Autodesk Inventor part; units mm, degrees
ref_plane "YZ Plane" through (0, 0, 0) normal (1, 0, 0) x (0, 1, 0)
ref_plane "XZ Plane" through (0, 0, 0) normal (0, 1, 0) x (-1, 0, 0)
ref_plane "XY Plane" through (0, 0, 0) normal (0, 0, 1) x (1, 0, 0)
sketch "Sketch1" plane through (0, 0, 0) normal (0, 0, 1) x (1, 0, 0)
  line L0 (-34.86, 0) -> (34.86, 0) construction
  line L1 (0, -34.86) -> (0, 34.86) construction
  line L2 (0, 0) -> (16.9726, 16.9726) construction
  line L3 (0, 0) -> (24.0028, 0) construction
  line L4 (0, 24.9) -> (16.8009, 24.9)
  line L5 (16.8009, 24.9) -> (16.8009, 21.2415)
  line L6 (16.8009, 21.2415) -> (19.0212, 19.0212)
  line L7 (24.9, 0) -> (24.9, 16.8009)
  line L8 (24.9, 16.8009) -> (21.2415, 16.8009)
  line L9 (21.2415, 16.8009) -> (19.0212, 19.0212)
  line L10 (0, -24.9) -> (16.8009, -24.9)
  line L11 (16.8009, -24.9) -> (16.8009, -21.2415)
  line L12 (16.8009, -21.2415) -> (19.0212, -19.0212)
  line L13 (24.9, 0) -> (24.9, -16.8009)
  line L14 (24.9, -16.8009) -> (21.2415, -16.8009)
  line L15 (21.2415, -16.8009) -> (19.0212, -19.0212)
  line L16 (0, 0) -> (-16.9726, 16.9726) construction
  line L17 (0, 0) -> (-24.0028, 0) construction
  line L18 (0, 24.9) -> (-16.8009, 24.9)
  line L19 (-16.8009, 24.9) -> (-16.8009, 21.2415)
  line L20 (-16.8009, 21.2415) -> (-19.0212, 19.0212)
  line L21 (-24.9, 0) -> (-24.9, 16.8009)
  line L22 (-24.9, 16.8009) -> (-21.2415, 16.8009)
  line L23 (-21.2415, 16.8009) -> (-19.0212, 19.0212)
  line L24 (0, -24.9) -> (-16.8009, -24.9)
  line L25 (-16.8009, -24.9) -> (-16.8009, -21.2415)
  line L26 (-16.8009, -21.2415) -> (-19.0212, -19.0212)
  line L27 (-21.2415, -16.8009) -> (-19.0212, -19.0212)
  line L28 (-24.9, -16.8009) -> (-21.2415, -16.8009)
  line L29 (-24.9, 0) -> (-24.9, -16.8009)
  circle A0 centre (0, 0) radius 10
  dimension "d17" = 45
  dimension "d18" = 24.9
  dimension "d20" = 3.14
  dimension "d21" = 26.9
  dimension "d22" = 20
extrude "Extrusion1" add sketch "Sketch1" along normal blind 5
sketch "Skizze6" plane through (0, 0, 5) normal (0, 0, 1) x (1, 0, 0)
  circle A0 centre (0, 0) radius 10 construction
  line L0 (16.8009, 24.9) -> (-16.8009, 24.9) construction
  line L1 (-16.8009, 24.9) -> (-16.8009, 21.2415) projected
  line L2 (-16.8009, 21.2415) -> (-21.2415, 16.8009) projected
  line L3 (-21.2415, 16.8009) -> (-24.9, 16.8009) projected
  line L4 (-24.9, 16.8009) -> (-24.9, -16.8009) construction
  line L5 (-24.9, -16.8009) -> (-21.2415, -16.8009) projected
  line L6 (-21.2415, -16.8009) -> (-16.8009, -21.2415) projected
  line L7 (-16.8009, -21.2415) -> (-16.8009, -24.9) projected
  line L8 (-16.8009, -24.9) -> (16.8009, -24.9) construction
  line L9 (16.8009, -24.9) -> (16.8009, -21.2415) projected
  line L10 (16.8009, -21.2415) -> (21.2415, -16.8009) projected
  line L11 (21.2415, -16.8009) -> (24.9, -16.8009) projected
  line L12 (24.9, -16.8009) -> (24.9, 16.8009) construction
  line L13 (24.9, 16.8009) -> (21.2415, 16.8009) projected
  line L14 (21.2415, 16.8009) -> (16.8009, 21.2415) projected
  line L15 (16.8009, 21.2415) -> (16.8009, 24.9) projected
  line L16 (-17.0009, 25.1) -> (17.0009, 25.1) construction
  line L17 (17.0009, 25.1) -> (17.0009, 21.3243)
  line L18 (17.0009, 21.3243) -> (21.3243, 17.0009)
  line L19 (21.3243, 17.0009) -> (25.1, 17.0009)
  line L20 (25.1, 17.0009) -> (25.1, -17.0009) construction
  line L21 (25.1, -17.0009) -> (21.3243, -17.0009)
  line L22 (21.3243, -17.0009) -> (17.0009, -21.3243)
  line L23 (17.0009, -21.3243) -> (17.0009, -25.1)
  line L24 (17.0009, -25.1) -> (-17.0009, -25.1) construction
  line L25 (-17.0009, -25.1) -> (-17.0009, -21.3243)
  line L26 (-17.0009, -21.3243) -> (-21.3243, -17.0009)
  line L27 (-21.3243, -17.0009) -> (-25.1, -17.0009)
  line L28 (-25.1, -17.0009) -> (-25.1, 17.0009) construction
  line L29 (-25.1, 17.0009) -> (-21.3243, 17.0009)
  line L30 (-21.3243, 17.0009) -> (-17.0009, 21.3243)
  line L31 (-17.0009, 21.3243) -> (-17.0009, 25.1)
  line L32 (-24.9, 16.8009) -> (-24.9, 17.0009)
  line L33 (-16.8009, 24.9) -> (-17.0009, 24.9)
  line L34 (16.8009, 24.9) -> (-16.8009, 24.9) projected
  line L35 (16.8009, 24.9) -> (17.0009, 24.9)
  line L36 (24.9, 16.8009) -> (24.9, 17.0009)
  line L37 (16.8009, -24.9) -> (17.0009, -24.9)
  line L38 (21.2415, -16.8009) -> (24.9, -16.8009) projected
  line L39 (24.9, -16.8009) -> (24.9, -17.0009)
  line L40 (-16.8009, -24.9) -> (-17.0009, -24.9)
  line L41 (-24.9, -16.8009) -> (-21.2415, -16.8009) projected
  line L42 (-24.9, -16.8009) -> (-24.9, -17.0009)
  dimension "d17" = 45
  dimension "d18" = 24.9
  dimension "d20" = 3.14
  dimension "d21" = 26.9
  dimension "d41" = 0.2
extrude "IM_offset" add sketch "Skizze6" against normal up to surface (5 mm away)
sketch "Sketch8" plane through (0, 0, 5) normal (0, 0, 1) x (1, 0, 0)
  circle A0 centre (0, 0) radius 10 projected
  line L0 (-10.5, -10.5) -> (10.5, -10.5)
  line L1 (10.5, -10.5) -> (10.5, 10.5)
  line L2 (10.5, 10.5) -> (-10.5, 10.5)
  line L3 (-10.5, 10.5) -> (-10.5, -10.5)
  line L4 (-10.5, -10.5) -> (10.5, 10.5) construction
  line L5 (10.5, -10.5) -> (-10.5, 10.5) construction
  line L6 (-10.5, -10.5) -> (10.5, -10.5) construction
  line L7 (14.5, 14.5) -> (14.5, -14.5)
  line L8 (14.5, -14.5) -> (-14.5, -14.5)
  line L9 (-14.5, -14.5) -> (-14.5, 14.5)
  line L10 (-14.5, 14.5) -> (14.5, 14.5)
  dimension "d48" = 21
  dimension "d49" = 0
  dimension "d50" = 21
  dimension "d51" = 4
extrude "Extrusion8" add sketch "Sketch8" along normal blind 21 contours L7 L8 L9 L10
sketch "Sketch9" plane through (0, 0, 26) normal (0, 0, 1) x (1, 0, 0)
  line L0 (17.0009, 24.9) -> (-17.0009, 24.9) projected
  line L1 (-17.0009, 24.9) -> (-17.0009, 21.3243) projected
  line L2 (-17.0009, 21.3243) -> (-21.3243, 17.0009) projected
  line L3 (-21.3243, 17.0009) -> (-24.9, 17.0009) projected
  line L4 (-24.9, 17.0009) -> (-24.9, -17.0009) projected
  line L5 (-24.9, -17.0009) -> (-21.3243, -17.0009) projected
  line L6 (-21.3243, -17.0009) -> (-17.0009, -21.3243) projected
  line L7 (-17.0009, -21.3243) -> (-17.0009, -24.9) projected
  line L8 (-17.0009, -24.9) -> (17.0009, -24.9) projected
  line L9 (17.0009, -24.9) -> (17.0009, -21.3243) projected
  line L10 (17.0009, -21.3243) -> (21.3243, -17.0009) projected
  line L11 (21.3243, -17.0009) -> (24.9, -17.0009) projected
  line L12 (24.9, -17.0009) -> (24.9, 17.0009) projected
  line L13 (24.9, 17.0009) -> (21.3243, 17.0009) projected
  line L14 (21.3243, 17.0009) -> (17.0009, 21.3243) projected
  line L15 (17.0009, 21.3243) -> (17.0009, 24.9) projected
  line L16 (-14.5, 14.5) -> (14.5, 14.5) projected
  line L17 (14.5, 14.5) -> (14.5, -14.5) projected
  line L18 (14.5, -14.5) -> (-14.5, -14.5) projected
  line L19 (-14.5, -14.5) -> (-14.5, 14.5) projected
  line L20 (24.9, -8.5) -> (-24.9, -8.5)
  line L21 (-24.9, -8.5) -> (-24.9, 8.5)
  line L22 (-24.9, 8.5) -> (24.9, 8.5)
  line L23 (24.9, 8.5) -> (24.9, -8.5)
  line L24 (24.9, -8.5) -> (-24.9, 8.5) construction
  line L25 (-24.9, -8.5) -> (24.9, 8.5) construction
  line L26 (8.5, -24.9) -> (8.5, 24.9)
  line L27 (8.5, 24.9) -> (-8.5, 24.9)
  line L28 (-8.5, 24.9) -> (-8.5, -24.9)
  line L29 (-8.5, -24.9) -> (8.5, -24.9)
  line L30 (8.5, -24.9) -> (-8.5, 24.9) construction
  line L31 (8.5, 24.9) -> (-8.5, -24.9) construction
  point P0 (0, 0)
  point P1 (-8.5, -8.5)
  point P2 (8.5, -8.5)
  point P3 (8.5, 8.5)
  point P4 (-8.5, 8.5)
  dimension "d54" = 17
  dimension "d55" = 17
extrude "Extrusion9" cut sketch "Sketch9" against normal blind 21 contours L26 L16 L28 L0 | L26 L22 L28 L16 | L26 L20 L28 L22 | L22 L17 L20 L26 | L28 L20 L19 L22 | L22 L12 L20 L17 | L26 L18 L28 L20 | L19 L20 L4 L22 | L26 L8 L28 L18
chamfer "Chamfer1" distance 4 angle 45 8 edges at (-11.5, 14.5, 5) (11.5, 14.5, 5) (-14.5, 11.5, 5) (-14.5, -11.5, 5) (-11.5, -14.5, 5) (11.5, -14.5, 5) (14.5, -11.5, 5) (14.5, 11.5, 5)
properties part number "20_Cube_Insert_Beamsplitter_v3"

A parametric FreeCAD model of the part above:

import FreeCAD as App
import Part
import Sketcher
Q = App.Units.Quantity


def edges_at(feature, points):
    """Names of the edges that pass closest to the given points."""
    edges = feature.Shape.Edges
    near = lambda p: min(range(len(edges)), key=lambda i: edges[i].distToShape(Part.Vertex(*p))[0])
    return sorted({f"Edge{near(p) + 1}" for p in points})


def add_polygon(sketch, points):
    """Adds a closed chain of lines whose ends are joined by coincident constraints."""
    first, n = sketch.GeometryCount, len(points)
    for a, b in zip(points, points[1:] + points[:1]):
        sketch.addGeometry(Part.LineSegment(App.Vector(*a, 0), App.Vector(*b, 0)), False)
    for i in range(n):
        sketch.addConstraint(Sketcher.Constraint("Coincident", first + i, 2, first + (i + 1) % n, 1))

doc = App.newDocument("Part")
params = doc.addObject("Spreadsheet::Sheet", "Params")
for row, (alias, value) in enumerate([
    ("sketch1_diameter", "20 mm"),
    ("sketch1_length", "6.28 mm"),
    ("pad1_length", "5 mm"),
    ("sketch2_width", "0.2 mm"),
    ("sketch2_length", "6.28 mm"),
    ("pad2_length", "5 mm"),
    ("sketch3_width", "21 mm"),
    ("pad3_length", "21 mm"),
    ("sketch4_width", "17 mm"),
    ("sketch4_width2", "16.4 mm"),
    ("pocket1_length", "21 mm"),
    ("chamfer_size", "4 mm"),
], start=1):
    params.set(f"A{row}", alias)
    params.set(f"B{row}", "=" + value)
    params.setAlias(f"B{row}", alias)

body = doc.addObject("PartDesign::Body", "Body")

# Sketch on XY plane
sketch1 = doc.addObject("Sketcher::SketchObject", "Sketch")
body.addObject(sketch1)
sketch1.AttachmentSupport = (doc.XY_Plane, [""])
sketch1.MapMode = "FlatFace"
add_polygon(sketch1, [(16.8, 24.9), (-16.8, 24.9), (-16.8, 21.2), (-21.2, 16.8), (-24.9, 16.8), (-24.9, -16.8), (-21.2, -16.8), (-16.8, -21.2), (-16.8, -24.9), (16.8, -24.9), (16.8, -21.2), (21.2, -16.8), (24.9, -16.8), (24.9, 16.8), (21.2, 16.8), (16.8, 21.2)])  # lines 0-15
sketch1.addGeometry(Part.Circle(App.Vector(0, 0, 0), App.Vector(0, 0, 1), 10), False)  # 16
sketch1.addConstraint(Sketcher.Constraint("Horizontal", 0))
sketch1.addConstraint(Sketcher.Constraint("Vertical", 1))
sketch1.addConstraint(Sketcher.Constraint("Horizontal", 3))
sketch1.addConstraint(Sketcher.Constraint("Vertical", 4))
sketch1.addConstraint(Sketcher.Constraint("Horizontal", 5))
sketch1.addConstraint(Sketcher.Constraint("Vertical", 7))
sketch1.addConstraint(Sketcher.Constraint("Horizontal", 8))
sketch1.addConstraint(Sketcher.Constraint("Vertical", 9))
sketch1.addConstraint(Sketcher.Constraint("Horizontal", 11))
sketch1.addConstraint(Sketcher.Constraint("Vertical", 12))
sketch1.addConstraint(Sketcher.Constraint("Horizontal", 13))
sketch1.addConstraint(Sketcher.Constraint("Vertical", 15))
sketch1.addConstraint(Sketcher.Constraint("Coincident", 16, 3, -1, 1))
sketch1.addConstraint(Sketcher.Constraint("Symmetric", 0, 2, 8, 2, -1, 1))
sketch1.addConstraint(Sketcher.Constraint("Symmetric", 2, 2, 10, 2, -1, 1))
sketch1.addConstraint(Sketcher.Constraint("Symmetric", 4, 2, 12, 2, -1, 1))
sketch1.addConstraint(Sketcher.Constraint("Symmetric", 6, 2, 14, 2, -1, 1))
sketch1.addConstraint(Sketcher.Constraint("Symmetric", 6, 2, 9, 2, -2))
sketch1.addConstraint(Sketcher.Constraint("Symmetric", 5, 2, 10, 2, -2))
sketch1.addConstraint(Sketcher.Constraint("Perpendicular", 2, 6))
sketch1.addConstraint(Sketcher.Constraint("Perpendicular", 6, 10))
sketch1.addConstraint(Sketcher.Constraint("Perpendicular", 10, 14))
sketch1.addConstraint(Sketcher.Constraint("Equal", 13, 1))
sketch1.addConstraint(Sketcher.Constraint("Equal", 8, 4))
sketch1.addConstraint(Sketcher.Constraint("Diameter", 16, Q("20 mm")))
sketch1.addConstraint(Sketcher.Constraint("DistanceY", -1, 1, 0, 2, Q("24.9 mm")))
sketch1.addConstraint(Sketcher.Constraint("Distance", 2, Q("6.28 mm")))
sketch1.addConstraint(Sketcher.Constraint("DistanceX", 0, 2, 0, 1, Q("33.6018 mm")))
sketch1.setExpression("Constraints[40]", "Params.sketch1_diameter")
sketch1.setExpression("Constraints[42]", "Params.sketch1_length")
pad1 = doc.addObject("PartDesign::Pad", "Pad")
body.addObject(pad1)
pad1.Profile = sketch1
pad1.setExpression("Length", "Params.pad1_length")

# Sketch on XY plane
sketch2 = doc.addObject("Sketcher::SketchObject", "Sketch001")
body.addObject(sketch2)
sketch2.AttachmentSupport = (doc.XY_Plane, [""])
sketch2.MapMode = "FlatFace"
sketch2.AttachmentOffset = App.Placement(App.Vector(0, 0, 5), App.Rotation())
add_polygon(sketch2, [(-16.8, 21.24), (-16.8, 24.9), (-17, 24.9), (-17, 21.32), (-21.32, 17), (-24.9, 17), (-24.9, 16.8), (-21.24, 16.8)])  # lines 0-7
add_polygon(sketch2, [(17, 24.9), (16.8, 24.9), (16.8, 21.24), (21.24, 16.8), (24.9, 16.8), (24.9, 17), (21.32, 17), (17, 21.32)])  # lines 8-15
add_polygon(sketch2, [(-21.24, -16.8), (-24.9, -16.8), (-24.9, -17), (-21.32, -17), (-17, -21.32), (-17, -24.9), (-16.8, -24.9), (-16.8, -21.24)])  # lines 16-23
add_polygon(sketch2, [(16.8, -21.24), (16.8, -24.9), (17, -24.9), (17, -21.32), (21.32, -17), (24.9, -17), (24.9, -16.8), (21.24, -16.8)])  # lines 24-31
sketch2.addConstraint(Sketcher.Constraint("Vertical", 0))
sketch2.addConstraint(Sketcher.Constraint("Horizontal", 1))
sketch2.addConstraint(Sketcher.Constraint("Vertical", 2))
sketch2.addConstraint(Sketcher.Constraint("Horizontal", 4))
sketch2.addConstraint(Sketcher.Constraint("Vertical", 5))
sketch2.addConstraint(Sketcher.Constraint("Horizontal", 6))
sketch2.addConstraint(Sketcher.Constraint("Horizontal", 8))
sketch2.addConstraint(Sketcher.Constraint("Vertical", 9))
sketch2.addConstraint(Sketcher.Constraint("Horizontal", 11))
sketch2.addConstraint(Sketcher.Constraint("Vertical", 12))
sketch2.addConstraint(Sketcher.Constraint("Horizontal", 13))
sketch2.addConstraint(Sketcher.Constraint("Vertical", 15))
sketch2.addConstraint(Sketcher.Constraint("Horizontal", 16))
sketch2.addConstraint(Sketcher.Constraint("Vertical", 17))
sketch2.addConstraint(Sketcher.Constraint("Horizontal", 18))
sketch2.addConstraint(Sketcher.Constraint("Vertical", 20))
sketch2.addConstraint(Sketcher.Constraint("Horizontal", 21))
sketch2.addConstraint(Sketcher.Constraint("Vertical", 22))
sketch2.addConstraint(Sketcher.Constraint("Vertical", 24))
sketch2.addConstraint(Sketcher.Constraint("Horizontal", 25))
sketch2.addConstraint(Sketcher.Constraint("Vertical", 26))
sketch2.addConstraint(Sketcher.Constraint("Horizontal", 28))
sketch2.addConstraint(Sketcher.Constraint("Vertical", 29))
sketch2.addConstraint(Sketcher.Constraint("Horizontal", 30))
sketch2.addConstraint(Sketcher.Constraint("Symmetric", 11, 2, 16, 2, -1, 1))
sketch2.addConstraint(Sketcher.Constraint("Symmetric", 13, 2, 18, 2, -1, 1))
sketch2.addConstraint(Sketcher.Constraint("Symmetric", 14, 2, 19, 2, -1, 1))
sketch2.addConstraint(Sketcher.Constraint("Symmetric", 8, 2, 21, 2, -1, 1))
sketch2.addConstraint(Sketcher.Constraint("Symmetric", 0, 2, 24, 2, -1, 1))
sketch2.addConstraint(Sketcher.Constraint("Symmetric", 2, 2, 26, 2, -1, 1))
sketch2.addConstraint(Sketcher.Constraint("Symmetric", 3, 2, 27, 2, -1, 1))
sketch2.addConstraint(Sketcher.Constraint("Symmetric", 5, 2, 29, 2, -1, 1))
sketch2.addConstraint(Sketcher.Constraint("Symmetric", 0, 2, 8, 2, -2))
sketch2.addConstraint(Sketcher.Constraint("Symmetric", 6, 2, 10, 2, -2))
sketch2.addConstraint(Sketcher.Constraint("Symmetric", 4, 2, 12, 2, -2))
sketch2.addConstraint(Sketcher.Constraint("Symmetric", 2, 2, 14, 2, -2))
sketch2.addConstraint(Sketcher.Constraint("Parallel", 3, 7))
sketch2.addConstraint(Sketcher.Constraint("Perpendicular", 7, 10))
sketch2.addConstraint(Sketcher.Constraint("Parallel", 10, 14))
sketch2.addConstraint(Sketcher.Constraint("Parallel", 19, 23))
sketch2.addConstraint(Sketcher.Constraint("Parallel", 27, 31))
sketch2.addConstraint(Sketcher.Constraint("Horizontal", 7, 2, 9, 2))
sketch2.addConstraint(Sketcher.Constraint("Horizontal", 22, 2, 31, 2))
sketch2.addConstraint(Sketcher.Constraint("Vertical", 6, 2, 23, 2))
sketch2.addConstraint(Sketcher.Constraint("Equal", 30, 0))
sketch2.addConstraint(Sketcher.Constraint("Equal", 28, 2))
sketch2.addConstraint(Sketcher.Constraint("DistanceX", 1, 2, 1, 1, Q("0.2 mm")))
sketch2.addConstraint(Sketcher.Constraint("DistanceY", -1, 1, 0, 2, Q("24.9 mm")))
sketch2.addConstraint(Sketcher.Constraint("DistanceX", 4, 2, -1, 1, Q("24.9 mm")))
sketch2.addConstraint(Sketcher.Constraint("Distance", 7, Q("6.28 mm")))
sketch2.addConstraint(Sketcher.Constraint("DistanceX", 4, 2, 4, 1, Q("3.5757 mm")))
sketch2.addConstraint(Sketcher.Constraint("DistanceX", 6, 1, 6, 2, Q("3.6585 mm")))
sketch2.setExpression("Constraints[78]", "Params.sketch2_width")
sketch2.setExpression("Constraints[81]", "Params.sketch2_length")
pad2 = doc.addObject("PartDesign::Pad", "Pad001")
body.addObject(pad2)
pad2.Profile = sketch2
pad2.setExpression("Length", "Params.pad2_length")
pad2.Reversed = True

# Sketch on XY plane
sketch3 = doc.addObject("Sketcher::SketchObject", "Sketch002")
body.addObject(sketch3)
sketch3.AttachmentSupport = (doc.XY_Plane, [""])
sketch3.MapMode = "FlatFace"
sketch3.AttachmentOffset = App.Placement(App.Vector(0, 0, 5), App.Rotation())
add_polygon(sketch3, [(14, -14), (14, 14), (-14, 14), (-14, -14)])  # lines 0-3
add_polygon(sketch3, [(10, -10), (-10, -10), (-10, 10), (10, 10)])  # lines 4-7
sketch3.addConstraint(Sketcher.Constraint("Vertical", 0))
sketch3.addConstraint(Sketcher.Constraint("Horizontal", 1))
sketch3.addConstraint(Sketcher.Constraint("Vertical", 2))
sketch3.addConstraint(Sketcher.Constraint("Horizontal", 3))
sketch3.addConstraint(Sketcher.Constraint("Horizontal", 4))
sketch3.addConstraint(Sketcher.Constraint("Vertical", 5))
sketch3.addConstraint(Sketcher.Constraint("Horizontal", 6))
sketch3.addConstraint(Sketcher.Constraint("Vertical", 7))
sketch3.addConstraint(Sketcher.Constraint("Symmetric", 0, 2, 2, 2, -1, 1))
sketch3.addConstraint(Sketcher.Constraint("Symmetric", 4, 2, 6, 2, -1, 1))
sketch3.addConstraint(Sketcher.Constraint("Equal", 3, 0))
sketch3.addConstraint(Sketcher.Constraint("Equal", 6, 5))
sketch3.addConstraint(Sketcher.Constraint("DistanceX", 4, 2, 4, 1, Q("21 mm")))
sketch3.addConstraint(Sketcher.Constraint("DistanceX", 2, 2, 4, 2, Q("4 mm")))
sketch3.setExpression("Constraints[20]", "Params.sketch3_width")
pad3 = doc.addObject("PartDesign::Pad", "Pad002")
body.addObject(pad3)
pad3.Profile = sketch3
pad3.setExpression("Length", "Params.pad3_length")

# Sketch on XY plane
sketch4 = doc.addObject("Sketcher::SketchObject", "Sketch003")
body.addObject(sketch4)
sketch4.AttachmentSupport = (doc.XY_Plane, [""])
sketch4.MapMode = "FlatFace"
sketch4.AttachmentOffset = App.Placement(App.Vector(0, 0, 26), App.Rotation())
add_polygon(sketch4, [(8, 25), (-8, 25), (-8, 8), (-25, 8), (-25, -8), (-8, -8), (-8, -25), (8, -25), (8, -8), (25, -8), (25, 8), (8, 8)])  # lines 0-11
sketch4.addConstraint(Sketcher.Constraint("Horizontal", 0))
sketch4.addConstraint(Sketcher.Constraint("Vertical", 1))
sketch4.addConstraint(Sketcher.Constraint("Horizontal", 2))
sketch4.addConstraint(Sketcher.Constraint("Vertical", 3))
sketch4.addConstraint(Sketcher.Constraint("Horizontal", 4))
sketch4.addConstraint(Sketcher.Constraint("Vertical", 5))
sketch4.addConstraint(Sketcher.Constraint("Horizontal", 6))
sketch4.addConstraint(Sketcher.Constraint("Vertical", 7))
sketch4.addConstraint(Sketcher.Constraint("Horizontal", 8))
sketch4.addConstraint(Sketcher.Constraint("Vertical", 9))
sketch4.addConstraint(Sketcher.Constraint("Horizontal", 10))
sketch4.addConstraint(Sketcher.Constraint("Vertical", 11))
sketch4.addConstraint(Sketcher.Constraint("Symmetric", 0, 2, 6, 2, -1, 1))
sketch4.addConstraint(Sketcher.Constraint("Symmetric", 2, 2, 8, 2, -1, 1))
sketch4.addConstraint(Sketcher.Constraint("Symmetric", 4, 2, 10, 2, -1, 1))
sketch4.addConstraint(Sketcher.Constraint("Symmetric", 4, 2, 7, 2, -2))
sketch4.addConstraint(Sketcher.Constraint("Equal", 10, 1))
sketch4.addConstraint(Sketcher.Constraint("Equal", 6, 3))
sketch4.addConstraint(Sketcher.Constraint("DistanceX", 0, 2, 0, 1, Q("17 mm")))
sketch4.addConstraint(Sketcher.Constraint("DistanceX", 2, 2, 2, 1, Q("16.4 mm")))
sketch4.setExpression("Constraints[30]", "Params.sketch4_width")
sketch4.setExpression("Constraints[31]", "Params.sketch4_width2")
pocket1 = doc.addObject("PartDesign::Pocket", "Pocket")
body.addObject(pocket1)
pocket1.Profile = sketch4
pocket1.setExpression("Length", "Params.pocket1_length")
doc.recompute()

chamfer = doc.addObject("PartDesign::Chamfer", "Chamfer")
body.addObject(chamfer)
chamfer.Base = (pocket1, edges_at(pocket1, [
    (-11.5, 14.5, 5),
    (11.5, 14.5, 5),
    (-14.5, 11.5, 5),
    (-14.5, -11.5, 5),
    (-11.5, -14.5, 5),
    (11.5, -14.5, 5),
    (14.5, -11.5, 5),
    (14.5, 11.5, 5),
]))
chamfer.setExpression("Size", "Params.chamfer_size")

doc.recompute()
